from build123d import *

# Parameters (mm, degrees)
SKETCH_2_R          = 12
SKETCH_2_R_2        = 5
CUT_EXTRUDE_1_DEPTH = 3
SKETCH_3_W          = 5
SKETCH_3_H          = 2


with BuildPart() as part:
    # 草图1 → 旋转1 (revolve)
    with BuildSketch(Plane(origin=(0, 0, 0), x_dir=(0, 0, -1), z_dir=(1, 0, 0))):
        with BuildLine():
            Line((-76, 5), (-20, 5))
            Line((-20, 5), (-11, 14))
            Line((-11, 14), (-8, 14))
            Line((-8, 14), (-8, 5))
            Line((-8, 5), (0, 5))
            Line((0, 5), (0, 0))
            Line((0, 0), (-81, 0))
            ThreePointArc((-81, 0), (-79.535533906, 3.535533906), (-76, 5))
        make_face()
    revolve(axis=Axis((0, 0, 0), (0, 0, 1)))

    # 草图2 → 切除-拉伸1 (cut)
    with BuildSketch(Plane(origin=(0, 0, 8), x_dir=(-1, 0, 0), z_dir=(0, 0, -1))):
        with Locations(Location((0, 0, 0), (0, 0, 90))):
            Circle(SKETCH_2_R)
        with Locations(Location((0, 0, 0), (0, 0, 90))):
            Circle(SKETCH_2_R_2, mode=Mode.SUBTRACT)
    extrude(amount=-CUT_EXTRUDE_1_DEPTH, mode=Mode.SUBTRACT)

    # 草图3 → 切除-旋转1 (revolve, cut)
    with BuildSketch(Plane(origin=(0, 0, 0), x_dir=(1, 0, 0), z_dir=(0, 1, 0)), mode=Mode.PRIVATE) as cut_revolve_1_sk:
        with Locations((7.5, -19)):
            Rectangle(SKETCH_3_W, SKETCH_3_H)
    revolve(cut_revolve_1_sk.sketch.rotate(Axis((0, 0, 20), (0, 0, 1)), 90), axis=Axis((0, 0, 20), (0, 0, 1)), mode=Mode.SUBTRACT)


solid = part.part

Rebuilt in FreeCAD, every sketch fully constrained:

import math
import FreeCAD as App
import Part
import Sketcher
from FreeCAD import Vector


def add_polygon(sketch, points):
    """Adds a closed chain of lines whose ends are joined by coincident constraints."""
    first, n = sketch.GeometryCount, len(points)
    for a, b in zip(points, points[1:] + points[:1]):
        sketch.addGeometry(Part.LineSegment(App.Vector(*a, 0), App.Vector(*b, 0)), False)
    for i in range(n):
        sketch.addConstraint(Sketcher.Constraint("Coincident", first + i, 2, first + (i + 1) % n, 1))

doc = App.newDocument("Part")
body = doc.addObject("PartDesign::Body", "Body")

sketch1 = body.newObject("Sketcher::SketchObject", "Sketch")
sketch1.AttachmentSupport = (doc.getObject("YZ_Plane"), [""])
sketch1.MapMode = "FlatFace"
sketch1.addGeometry([
    Part.LineSegment(Vector(5, 20, 0), Vector(5, 76, 0)),
    Part.ArcOfCircle(Part.Circle(Vector(0, 76, 0), Vector(0, 0, 1), 5), math.radians(0), math.radians(90)),
    Part.LineSegment(Vector(0, 81, 0), Vector(0, 0, 0)),
    Part.LineSegment(Vector(0, 0, 0), Vector(5, 0, 0)),
    Part.LineSegment(Vector(5, 0, 0), Vector(5, 8, 0)),
    Part.LineSegment(Vector(5, 8, 0), Vector(14, 8, 0)),
    Part.LineSegment(Vector(14, 8, 0), Vector(14, 11, 0)),
    Part.LineSegment(Vector(14, 11, 0), Vector(5, 20, 0)),
], False)
sketch1.addConstraint([
    Sketcher.Constraint("Tangent", 0, 2, 1, 1),
    Sketcher.Constraint("Coincident", 1, 2, 2, 1),
    Sketcher.Constraint("Coincident", 2, 2, 3, 1),
    Sketcher.Constraint("Coincident", 3, 2, 4, 1),
    Sketcher.Constraint("Coincident", 4, 2, 5, 1),
    Sketcher.Constraint("Coincident", 5, 2, 6, 1),
    Sketcher.Constraint("Coincident", 6, 2, 7, 1),
    Sketcher.Constraint("Coincident", 7, 2, 0, 1),
    Sketcher.Constraint("Vertical", 0),
    Sketcher.Constraint("Vertical", 2),
    Sketcher.Constraint("Horizontal", 3),
    Sketcher.Constraint("Vertical", 4),
    Sketcher.Constraint("Horizontal", 5),
    Sketcher.Constraint("Vertical", 6),
    Sketcher.Constraint("Coincident", 2, 2, -1, 1),
    Sketcher.Constraint("PointOnObject", 1, 3, -2),
    Sketcher.Constraint("Vertical", 0, 2, 3, 2),
    Sketcher.Constraint("Radius", 1, 5.0),
    Sketcher.Constraint("DistanceX", 5, 1, 5, 2, 9.0),
    Sketcher.Constraint("DistanceY", 0, 1, 0, 2, 56.0),
    Sketcher.Constraint("DistanceY", 2, 2, 2, 1, 81.0),
    Sketcher.Constraint("DistanceY", 4, 1, 4, 2, 8.0),
    Sketcher.Constraint("DistanceY", 6, 1, 6, 2, 3.0),
])
revolution = body.newObject("PartDesign::Revolution", "Revolution")
revolution.Profile = sketch1
revolution.ReferenceAxis = (sketch1, ["V_Axis"])
revolution.Angle = 360

sketch2 = body.newObject("Sketcher::SketchObject", "Sketch001")
sketch2.AttachmentSupport = (doc.getObject("XY_Plane"), [""])
sketch2.MapMode = "FlatFace"
sketch2.AttachmentOffset = App.Placement(Vector(0, 0, 8), App.Rotation())
sketch2.addGeometry([
    Part.Circle(Vector(0, 0, 0), Vector(0, 0, 1), 12),
    Part.Circle(Vector(0, 0, 0), Vector(0, 0, 1), 5),
], False)
sketch2.addConstraint([
    Sketcher.Constraint("Coincident", 0, 3, -1, 1),
    Sketcher.Constraint("Coincident", 1, 3, -1, 1),
    Sketcher.Constraint("Diameter", 0, 24.0),
    Sketcher.Constraint("Diameter", 1, 10.0),
])
pocket1 = body.newObject("PartDesign::Pocket", "Pocket")
pocket1.Profile = sketch2
pocket1.Length = 3
pocket1.Reversed = True

sketch3 = body.newObject("Sketcher::SketchObject", "Sketch002")
sketch3.AttachmentSupport = (doc.getObject("XZ_Plane"), [""])
sketch3.MapMode = "FlatFace"
add_polygon(sketch3, [(5, 18), (5, 20), (10, 20), (10, 18)])
sketch3.addConstraint([
    Sketcher.Constraint("Vertical", 0),
    Sketcher.Constraint("Horizontal", 1),
    Sketcher.Constraint("Vertical", 2),
    Sketcher.Constraint("Horizontal", 3),
    Sketcher.Constraint("DistanceX", 1, 1, 1, 2, 5.0),
    Sketcher.Constraint("DistanceY", 0, 1, 0, 2, 2.0),
    Sketcher.Constraint("DistanceX", -1, 1, 0, 2, 5.0),
    Sketcher.Constraint("DistanceY", -1, 1, 0, 2, 20.0),
])
groove = body.newObject("PartDesign::Groove", "Groove")
groove.Profile = sketch3
groove.ReferenceAxis = (sketch3, ["V_Axis"])
groove.Angle = 360

doc.recompute()
